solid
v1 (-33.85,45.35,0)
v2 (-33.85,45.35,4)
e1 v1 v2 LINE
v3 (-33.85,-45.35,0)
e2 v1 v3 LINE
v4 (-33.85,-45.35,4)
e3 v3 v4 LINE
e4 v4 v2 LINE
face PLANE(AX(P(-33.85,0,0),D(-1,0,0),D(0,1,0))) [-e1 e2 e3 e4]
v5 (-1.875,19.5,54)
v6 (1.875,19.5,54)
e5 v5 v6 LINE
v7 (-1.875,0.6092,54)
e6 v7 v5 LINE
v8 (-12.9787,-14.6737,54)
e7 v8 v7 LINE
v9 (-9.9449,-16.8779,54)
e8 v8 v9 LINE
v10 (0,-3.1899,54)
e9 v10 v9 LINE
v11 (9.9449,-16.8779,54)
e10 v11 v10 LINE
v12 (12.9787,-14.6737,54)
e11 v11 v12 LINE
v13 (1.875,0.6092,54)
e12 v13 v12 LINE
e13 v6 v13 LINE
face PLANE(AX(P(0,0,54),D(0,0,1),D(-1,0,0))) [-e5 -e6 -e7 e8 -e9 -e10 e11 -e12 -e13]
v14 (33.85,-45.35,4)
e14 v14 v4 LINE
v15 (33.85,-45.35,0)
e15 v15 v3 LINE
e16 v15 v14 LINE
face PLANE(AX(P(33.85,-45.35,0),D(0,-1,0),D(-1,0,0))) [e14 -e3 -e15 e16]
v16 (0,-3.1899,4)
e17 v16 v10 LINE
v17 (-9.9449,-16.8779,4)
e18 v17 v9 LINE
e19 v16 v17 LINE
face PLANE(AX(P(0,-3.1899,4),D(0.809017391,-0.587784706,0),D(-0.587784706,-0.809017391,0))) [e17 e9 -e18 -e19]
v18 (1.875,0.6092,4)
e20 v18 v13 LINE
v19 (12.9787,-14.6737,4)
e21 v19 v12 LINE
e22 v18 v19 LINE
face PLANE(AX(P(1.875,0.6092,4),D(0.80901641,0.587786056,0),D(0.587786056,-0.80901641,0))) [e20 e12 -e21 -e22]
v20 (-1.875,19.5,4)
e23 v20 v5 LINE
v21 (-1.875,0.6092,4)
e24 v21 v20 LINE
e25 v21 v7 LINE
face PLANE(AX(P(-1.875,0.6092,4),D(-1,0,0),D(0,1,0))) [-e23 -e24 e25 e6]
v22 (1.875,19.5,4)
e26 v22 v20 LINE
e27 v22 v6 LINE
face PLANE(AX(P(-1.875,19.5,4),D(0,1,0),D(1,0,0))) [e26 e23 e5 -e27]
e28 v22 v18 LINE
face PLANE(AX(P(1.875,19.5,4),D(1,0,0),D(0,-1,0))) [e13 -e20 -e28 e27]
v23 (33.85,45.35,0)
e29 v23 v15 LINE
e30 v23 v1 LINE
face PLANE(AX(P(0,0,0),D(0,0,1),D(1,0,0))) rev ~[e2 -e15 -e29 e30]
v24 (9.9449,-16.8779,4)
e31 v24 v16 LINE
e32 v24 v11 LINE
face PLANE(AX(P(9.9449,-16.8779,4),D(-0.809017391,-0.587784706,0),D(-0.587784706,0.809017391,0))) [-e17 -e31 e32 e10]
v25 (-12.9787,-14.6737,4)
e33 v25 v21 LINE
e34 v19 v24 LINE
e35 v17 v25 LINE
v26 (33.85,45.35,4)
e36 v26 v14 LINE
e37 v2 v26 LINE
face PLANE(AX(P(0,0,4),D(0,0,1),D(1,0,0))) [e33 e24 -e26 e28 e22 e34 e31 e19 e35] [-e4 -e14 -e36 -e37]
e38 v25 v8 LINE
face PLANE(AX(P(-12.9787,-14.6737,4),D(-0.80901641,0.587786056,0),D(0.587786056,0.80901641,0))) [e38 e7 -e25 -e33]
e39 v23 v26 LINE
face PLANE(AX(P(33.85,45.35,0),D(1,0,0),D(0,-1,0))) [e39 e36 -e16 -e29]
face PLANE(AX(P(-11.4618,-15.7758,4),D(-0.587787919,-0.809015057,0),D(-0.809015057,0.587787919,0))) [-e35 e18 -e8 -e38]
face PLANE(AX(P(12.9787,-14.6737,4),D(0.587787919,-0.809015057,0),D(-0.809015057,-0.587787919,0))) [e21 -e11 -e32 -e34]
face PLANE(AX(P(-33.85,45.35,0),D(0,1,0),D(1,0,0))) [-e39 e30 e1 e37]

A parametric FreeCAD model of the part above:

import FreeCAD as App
import Part
import Sketcher
from FreeCAD import Vector
Q = App.Units.Quantity


def add_polygon(sketch, points):
    """Adds a closed chain of lines whose ends are joined by coincident constraints."""
    first, n = sketch.GeometryCount, len(points)
    for a, b in zip(points, points[1:] + points[:1]):
        sketch.addGeometry(Part.LineSegment(App.Vector(*a, 0), App.Vector(*b, 0)), False)
    for i in range(n):
        sketch.addConstraint(Sketcher.Constraint("Coincident", first + i, 2, first + (i + 1) % n, 1))

doc = App.newDocument("Part")
params = doc.addObject("Spreadsheet::Sheet", "Params")
for row, (alias, value) in enumerate([
    ("sketch1_width", "67.7 mm"),
    ("sketch1_height", "90.7 mm"),
    ("pad1_length", "4 mm"),
    ("sketch2_width", "3.75 mm"),
    ("sketch2_length", "3.75 mm"),
    ("pad2_length", "50 mm"),
], start=1):
    params.set(f"A{row}", alias)
    params.set(f"B{row}", "=" + value)
    params.setAlias(f"B{row}", alias)

body = doc.addObject("PartDesign::Body", "Body")

# Sketch on XY plane
sketch1 = doc.addObject("Sketcher::SketchObject", "Sketch")
body.addObject(sketch1)
sketch1.AttachmentSupport = (doc.XY_Plane, [""])
sketch1.MapMode = "FlatFace"
add_polygon(sketch1, [(-33.85, 45.35), (-33.85, -45.35), (33.85, -45.35), (33.85, 45.35)])  # lines 0-3
sketch1.addConstraint([
    Sketcher.Constraint("Vertical", 0),
    Sketcher.Constraint("Horizontal", 1),
    Sketcher.Constraint("Vertical", 2),
    Sketcher.Constraint("Horizontal", 3),
    Sketcher.Constraint("Symmetric", 0, 2, 2, 2, -1, 1),
    Sketcher.Constraint("DistanceX", 1, 1, 1, 2, 67.7),
    Sketcher.Constraint("DistanceY", 0, 2, 0, 1, 90.7),
])
sketch1.setExpression("Constraints[9]", "Params.sketch1_width")
sketch1.setExpression("Constraints[10]", "Params.sketch1_height")
pad1 = doc.addObject("PartDesign::Pad", "Pad")
body.addObject(pad1)
pad1.Profile = sketch1
pad1.setExpression("Length", "Params.pad1_length")

# Sketch on XY plane
sketch2 = doc.addObject("Sketcher::SketchObject", "Sketch001")
body.addObject(sketch2)
sketch2.AttachmentSupport = (doc.XY_Plane, [""])
sketch2.MapMode = "FlatFace"
sketch2.AttachmentOffset = App.Placement(Vector(0, 0, 4), App.Rotation())
add_polygon(sketch2, [(-1.875, 19.5), (-1.875, 0.6092), (-12.9787, -14.6737), (-9.9449, -16.8779), (0, -3.1899), (9.9449, -16.8779), (12.9787, -14.6737), (1.875, 0.6092), (1.875, 19.5)])  # lines 0-8
sketch2.addConstraint([
    Sketcher.Constraint("Vertical", 0),
    Sketcher.Constraint("Vertical", 7),
    Sketcher.Constraint("Horizontal", 8),
    Sketcher.Constraint("Symmetric", 2, 2, 4, 2, -2),
    Sketcher.Constraint("Symmetric", 1, 2, 5, 2, -2),
    Sketcher.Constraint("Symmetric", 0, 2, 6, 2, -2),
    Sketcher.Constraint("PointOnObject", 3, 2, -2),
    Sketcher.Constraint("Perpendicular", 1, 2),
    Sketcher.Constraint("Perpendicular", 2, 3),
    Sketcher.Constraint("DistanceX", 8, 2, 8, 1, 3.75),
    Sketcher.Constraint("DistanceY", -1, 1, 7, 2, 19.5),
    Sketcher.Constraint("Distance", 2, 3.75),
    Sketcher.Constraint("Angle", 1, Q("-126 deg")),
    Sketcher.Constraint("DistanceY", 3, 2, -1, 1, 3.19),
    Sketcher.Constraint("DistanceX", 2, 2, 0, 2, 8.07),
])
sketch2.setExpression("Constraints[18]", "Params.sketch2_width")
sketch2.setExpression("Constraints[20]", "Params.sketch2_length")
pad2 = doc.addObject("PartDesign::Pad", "Pad001")
body.addObject(pad2)
pad2.Profile = sketch2
pad2.setExpression("Length", "Params.pad2_length")

doc.recompute()
